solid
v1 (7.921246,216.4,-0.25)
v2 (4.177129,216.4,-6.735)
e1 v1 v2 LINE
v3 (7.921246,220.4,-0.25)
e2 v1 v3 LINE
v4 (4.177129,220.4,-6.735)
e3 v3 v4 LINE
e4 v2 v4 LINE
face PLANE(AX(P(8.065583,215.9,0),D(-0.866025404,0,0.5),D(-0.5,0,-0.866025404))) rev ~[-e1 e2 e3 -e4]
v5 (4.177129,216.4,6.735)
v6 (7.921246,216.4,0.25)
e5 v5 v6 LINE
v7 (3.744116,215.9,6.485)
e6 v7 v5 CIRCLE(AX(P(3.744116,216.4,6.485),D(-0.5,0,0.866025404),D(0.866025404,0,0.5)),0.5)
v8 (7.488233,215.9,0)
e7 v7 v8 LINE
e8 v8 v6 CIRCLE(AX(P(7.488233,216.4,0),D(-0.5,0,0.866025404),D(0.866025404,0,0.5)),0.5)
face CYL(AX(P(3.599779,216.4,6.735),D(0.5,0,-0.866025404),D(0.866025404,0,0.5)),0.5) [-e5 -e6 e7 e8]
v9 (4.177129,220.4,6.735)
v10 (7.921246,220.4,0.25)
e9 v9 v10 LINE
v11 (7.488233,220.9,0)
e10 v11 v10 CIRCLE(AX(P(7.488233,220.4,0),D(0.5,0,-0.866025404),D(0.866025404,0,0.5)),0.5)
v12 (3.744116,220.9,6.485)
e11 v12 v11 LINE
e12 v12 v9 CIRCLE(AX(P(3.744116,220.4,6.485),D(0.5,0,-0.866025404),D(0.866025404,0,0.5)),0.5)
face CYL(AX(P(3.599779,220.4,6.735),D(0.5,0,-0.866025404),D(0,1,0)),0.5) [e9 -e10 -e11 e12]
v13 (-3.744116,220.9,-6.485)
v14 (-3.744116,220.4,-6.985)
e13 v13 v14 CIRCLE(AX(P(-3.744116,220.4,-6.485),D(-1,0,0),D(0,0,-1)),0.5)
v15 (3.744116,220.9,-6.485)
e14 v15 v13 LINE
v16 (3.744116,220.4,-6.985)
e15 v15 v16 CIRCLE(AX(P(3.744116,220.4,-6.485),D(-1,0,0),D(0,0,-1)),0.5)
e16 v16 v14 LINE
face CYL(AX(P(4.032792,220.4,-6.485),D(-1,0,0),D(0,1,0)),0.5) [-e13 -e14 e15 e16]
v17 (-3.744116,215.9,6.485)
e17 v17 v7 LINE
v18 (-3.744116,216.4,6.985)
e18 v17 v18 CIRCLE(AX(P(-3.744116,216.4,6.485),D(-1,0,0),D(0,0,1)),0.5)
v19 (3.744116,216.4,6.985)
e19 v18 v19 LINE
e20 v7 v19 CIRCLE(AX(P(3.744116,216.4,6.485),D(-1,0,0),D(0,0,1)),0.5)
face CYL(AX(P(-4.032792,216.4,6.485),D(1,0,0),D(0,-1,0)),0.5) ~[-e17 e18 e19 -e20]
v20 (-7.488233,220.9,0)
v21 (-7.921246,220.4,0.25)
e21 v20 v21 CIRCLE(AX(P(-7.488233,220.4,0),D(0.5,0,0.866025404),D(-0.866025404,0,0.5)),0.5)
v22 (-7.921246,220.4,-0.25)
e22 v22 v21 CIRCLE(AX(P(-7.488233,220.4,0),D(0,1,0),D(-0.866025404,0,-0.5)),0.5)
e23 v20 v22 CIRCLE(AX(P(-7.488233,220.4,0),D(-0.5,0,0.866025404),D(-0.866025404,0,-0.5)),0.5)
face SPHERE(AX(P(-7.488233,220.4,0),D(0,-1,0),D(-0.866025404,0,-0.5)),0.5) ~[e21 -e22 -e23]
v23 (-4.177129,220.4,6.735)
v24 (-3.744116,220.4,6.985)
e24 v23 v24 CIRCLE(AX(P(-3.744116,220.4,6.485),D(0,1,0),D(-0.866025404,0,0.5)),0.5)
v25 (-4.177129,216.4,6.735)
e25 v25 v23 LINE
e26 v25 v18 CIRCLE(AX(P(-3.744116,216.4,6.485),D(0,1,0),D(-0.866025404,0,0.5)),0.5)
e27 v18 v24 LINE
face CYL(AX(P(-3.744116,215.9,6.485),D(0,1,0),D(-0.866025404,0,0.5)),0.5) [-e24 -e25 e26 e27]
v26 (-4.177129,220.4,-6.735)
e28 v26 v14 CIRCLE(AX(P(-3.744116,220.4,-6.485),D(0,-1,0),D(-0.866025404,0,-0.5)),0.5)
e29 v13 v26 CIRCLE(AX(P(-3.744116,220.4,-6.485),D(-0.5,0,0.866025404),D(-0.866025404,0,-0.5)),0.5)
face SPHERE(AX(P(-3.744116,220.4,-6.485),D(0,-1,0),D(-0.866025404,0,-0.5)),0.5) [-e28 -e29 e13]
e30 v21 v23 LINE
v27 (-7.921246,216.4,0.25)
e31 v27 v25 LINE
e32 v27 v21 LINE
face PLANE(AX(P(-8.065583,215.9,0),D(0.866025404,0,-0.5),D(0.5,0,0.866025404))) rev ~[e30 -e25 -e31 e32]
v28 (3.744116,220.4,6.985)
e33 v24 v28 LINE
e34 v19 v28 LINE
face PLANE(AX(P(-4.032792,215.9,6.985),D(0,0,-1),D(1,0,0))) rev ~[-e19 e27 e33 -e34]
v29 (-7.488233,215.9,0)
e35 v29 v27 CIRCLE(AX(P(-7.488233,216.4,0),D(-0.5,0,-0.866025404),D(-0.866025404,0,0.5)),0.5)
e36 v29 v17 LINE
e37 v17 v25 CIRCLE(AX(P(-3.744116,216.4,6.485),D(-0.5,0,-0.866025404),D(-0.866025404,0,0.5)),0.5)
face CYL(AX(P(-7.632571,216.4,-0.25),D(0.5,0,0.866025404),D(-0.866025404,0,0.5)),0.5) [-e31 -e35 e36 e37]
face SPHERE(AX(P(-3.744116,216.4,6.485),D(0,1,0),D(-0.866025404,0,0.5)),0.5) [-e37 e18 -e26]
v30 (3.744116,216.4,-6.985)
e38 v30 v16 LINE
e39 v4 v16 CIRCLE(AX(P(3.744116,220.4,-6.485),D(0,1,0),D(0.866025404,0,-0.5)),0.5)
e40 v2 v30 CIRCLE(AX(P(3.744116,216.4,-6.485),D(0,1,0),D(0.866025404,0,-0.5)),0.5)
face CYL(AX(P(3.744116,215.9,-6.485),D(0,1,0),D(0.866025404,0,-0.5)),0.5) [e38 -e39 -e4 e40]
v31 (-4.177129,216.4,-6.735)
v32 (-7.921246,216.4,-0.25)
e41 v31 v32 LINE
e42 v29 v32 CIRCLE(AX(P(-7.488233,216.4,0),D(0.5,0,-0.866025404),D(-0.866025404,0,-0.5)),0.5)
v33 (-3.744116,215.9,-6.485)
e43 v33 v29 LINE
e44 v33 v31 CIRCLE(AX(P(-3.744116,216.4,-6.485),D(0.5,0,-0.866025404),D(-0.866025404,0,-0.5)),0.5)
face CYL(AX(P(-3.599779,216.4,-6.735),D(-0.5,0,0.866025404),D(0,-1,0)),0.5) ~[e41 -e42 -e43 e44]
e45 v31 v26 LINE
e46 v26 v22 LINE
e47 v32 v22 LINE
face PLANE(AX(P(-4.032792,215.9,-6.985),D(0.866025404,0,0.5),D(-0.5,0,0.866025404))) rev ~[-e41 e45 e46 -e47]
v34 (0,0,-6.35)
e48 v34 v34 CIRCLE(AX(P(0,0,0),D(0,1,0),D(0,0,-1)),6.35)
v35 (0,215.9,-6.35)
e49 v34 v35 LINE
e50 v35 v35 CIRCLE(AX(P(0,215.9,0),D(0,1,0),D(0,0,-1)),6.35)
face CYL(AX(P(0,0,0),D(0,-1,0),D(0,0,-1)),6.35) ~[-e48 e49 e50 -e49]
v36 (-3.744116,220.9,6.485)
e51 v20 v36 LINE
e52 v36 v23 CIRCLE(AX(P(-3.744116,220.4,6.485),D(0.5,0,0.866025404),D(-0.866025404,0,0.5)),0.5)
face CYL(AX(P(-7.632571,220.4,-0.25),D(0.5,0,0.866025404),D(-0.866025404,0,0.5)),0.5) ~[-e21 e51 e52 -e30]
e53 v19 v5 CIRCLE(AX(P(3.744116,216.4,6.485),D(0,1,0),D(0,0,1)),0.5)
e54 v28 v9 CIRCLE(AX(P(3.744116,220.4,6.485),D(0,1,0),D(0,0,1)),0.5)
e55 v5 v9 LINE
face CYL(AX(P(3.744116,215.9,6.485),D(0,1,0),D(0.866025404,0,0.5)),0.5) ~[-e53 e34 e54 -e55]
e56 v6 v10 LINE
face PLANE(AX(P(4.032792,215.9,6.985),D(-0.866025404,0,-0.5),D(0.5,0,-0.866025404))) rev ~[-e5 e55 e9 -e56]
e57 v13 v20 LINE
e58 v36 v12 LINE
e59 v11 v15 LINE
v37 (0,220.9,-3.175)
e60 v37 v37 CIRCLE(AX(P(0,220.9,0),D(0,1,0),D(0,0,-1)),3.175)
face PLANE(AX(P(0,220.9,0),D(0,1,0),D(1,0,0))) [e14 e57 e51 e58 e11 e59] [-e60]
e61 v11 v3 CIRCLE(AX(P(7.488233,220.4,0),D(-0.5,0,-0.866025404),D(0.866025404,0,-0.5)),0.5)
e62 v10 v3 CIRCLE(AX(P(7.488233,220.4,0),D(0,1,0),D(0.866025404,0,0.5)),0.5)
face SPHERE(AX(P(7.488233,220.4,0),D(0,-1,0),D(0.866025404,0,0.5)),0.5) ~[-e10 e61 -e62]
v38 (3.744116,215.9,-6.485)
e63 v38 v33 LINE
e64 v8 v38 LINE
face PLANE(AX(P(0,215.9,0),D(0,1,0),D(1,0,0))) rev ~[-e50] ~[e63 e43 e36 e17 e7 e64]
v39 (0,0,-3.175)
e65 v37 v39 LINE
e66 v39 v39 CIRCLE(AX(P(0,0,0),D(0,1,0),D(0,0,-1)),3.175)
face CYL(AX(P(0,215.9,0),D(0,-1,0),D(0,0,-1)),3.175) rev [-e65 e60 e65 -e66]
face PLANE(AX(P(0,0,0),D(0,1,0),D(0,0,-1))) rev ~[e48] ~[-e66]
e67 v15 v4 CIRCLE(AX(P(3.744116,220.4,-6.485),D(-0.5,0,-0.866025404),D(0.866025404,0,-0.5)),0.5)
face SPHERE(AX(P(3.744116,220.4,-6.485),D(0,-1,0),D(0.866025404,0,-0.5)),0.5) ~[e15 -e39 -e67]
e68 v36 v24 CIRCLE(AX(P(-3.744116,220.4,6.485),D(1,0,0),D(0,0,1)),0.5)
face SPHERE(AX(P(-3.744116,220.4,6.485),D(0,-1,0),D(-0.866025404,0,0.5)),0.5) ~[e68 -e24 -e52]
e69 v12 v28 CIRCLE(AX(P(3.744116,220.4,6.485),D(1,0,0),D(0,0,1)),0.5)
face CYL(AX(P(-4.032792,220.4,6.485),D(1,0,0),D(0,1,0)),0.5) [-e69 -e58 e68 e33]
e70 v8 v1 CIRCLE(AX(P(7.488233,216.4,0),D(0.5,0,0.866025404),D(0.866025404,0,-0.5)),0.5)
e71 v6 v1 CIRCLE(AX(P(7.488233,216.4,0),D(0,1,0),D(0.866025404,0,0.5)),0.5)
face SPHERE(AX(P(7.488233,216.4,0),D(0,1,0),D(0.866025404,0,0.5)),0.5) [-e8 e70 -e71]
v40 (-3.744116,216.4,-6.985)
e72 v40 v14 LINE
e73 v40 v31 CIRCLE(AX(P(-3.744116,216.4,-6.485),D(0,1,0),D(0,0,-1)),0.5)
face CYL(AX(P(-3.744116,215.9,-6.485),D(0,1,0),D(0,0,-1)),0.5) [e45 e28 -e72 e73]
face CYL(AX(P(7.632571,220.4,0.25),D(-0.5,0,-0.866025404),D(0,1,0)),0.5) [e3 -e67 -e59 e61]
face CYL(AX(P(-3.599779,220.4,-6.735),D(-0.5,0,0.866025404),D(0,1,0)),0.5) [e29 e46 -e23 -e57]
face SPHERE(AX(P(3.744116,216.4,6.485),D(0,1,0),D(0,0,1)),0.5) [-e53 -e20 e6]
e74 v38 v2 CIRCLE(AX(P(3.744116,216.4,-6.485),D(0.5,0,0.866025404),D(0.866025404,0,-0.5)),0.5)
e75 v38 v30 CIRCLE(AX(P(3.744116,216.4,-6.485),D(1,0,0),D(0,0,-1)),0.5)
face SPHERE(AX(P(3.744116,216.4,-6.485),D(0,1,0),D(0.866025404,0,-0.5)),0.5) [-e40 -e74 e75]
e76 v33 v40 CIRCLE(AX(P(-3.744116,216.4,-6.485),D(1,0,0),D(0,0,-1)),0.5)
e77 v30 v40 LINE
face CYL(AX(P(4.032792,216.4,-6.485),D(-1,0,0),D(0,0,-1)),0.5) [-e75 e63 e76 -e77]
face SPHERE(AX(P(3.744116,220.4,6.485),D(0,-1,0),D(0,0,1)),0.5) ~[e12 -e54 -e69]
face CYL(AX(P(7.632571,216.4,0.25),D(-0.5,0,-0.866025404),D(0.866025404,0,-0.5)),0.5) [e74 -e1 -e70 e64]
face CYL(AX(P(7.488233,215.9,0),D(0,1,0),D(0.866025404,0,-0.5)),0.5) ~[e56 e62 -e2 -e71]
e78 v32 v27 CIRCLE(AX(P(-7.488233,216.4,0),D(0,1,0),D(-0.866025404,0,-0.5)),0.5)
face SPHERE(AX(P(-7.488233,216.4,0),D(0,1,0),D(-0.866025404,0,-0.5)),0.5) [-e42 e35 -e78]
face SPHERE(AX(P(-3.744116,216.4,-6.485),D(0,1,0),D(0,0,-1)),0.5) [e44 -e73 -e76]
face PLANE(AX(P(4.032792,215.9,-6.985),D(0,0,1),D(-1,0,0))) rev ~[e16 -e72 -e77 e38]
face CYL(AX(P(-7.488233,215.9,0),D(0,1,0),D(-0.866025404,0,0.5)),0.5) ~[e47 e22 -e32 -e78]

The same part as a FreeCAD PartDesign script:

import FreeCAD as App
import Part
import Sketcher
Q = App.Units.Quantity


def edges_at(feature, points):
    """Names of the edges that pass closest to the given points."""
    edges = feature.Shape.Edges
    near = lambda p: min(range(len(edges)), key=lambda i: edges[i].distToShape(Part.Vertex(*p))[0])
    return sorted({f"Edge{near(p) + 1}" for p in points})


def add_polygon(sketch, points):
    """Adds a closed chain of lines whose ends are joined by coincident constraints."""
    first, n = sketch.GeometryCount, len(points)
    for a, b in zip(points, points[1:] + points[:1]):
        sketch.addGeometry(Part.LineSegment(App.Vector(*a, 0), App.Vector(*b, 0)), False)
    for i in range(n):
        sketch.addConstraint(Sketcher.Constraint("Coincident", first + i, 2, first + (i + 1) % n, 1))

doc = App.newDocument("Part")
body = doc.addObject("PartDesign::Body", "Body")

# Sketch on XZ plane
sketch1 = body.newObject("Sketcher::SketchObject", "Sketch")
sketch1.AttachmentSupport = (doc.getObject("XZ_Plane"), [""])
sketch1.MapMode = "FlatFace"
sketch1.addGeometry([
    Part.Circle(App.Vector(0, 0, 0), App.Vector(0, 0, 1), 6.3),
    Part.Circle(App.Vector(0, 0, 0), App.Vector(0, 0, 1), 3.2),
], False)
sketch1.addConstraint([
    Sketcher.Constraint("Coincident", 0, 3, -1, 1),
    Sketcher.Constraint("Coincident", 1, 3, -1, 1),
    Sketcher.Constraint("Diameter", 0, Q("0.5 in")),
    Sketcher.Constraint("Diameter", 1, Q("0.25 in")),
])
pad1 = body.newObject("PartDesign::Pad", "Pad")
pad1.Profile = sketch1
pad1.Length = Q("8.5 in")
pad1.Reversed = True

# Sketch on XZ plane
sketch2 = body.newObject("Sketcher::SketchObject", "Sketch001")
sketch2.AttachmentSupport = (doc.getObject("XZ_Plane"), [""])
sketch2.MapMode = "FlatFace"
sketch2.AttachmentOffset = App.Placement(App.Vector(0, 0, -8.5 * 25.4), App.Rotation())
add_polygon(sketch2, [(-8.1, 0), (-4, 7), (4, 7), (8.1, 0), (4, -7), (-4, -7)])  # lines 0-5
sketch2.addGeometry(Part.Circle(App.Vector(0, 0, 0), App.Vector(0, 0, 1), 3.2), False)  # 6
sketch2.addConstraint([
    Sketcher.Constraint("Horizontal", 1),
    Sketcher.Constraint("Horizontal", 4),
    Sketcher.Constraint("Coincident", 6, 3, -1, 1),
    Sketcher.Constraint("Symmetric", 0, 2, 3, 2, -1, 1),
    Sketcher.Constraint("Symmetric", 2, 2, 5, 2, -1, 1),
    Sketcher.Constraint("PointOnObject", 2, 2, -1),
    Sketcher.Constraint("Parallel", 2, 5),
    Sketcher.Constraint("Vertical", 1, 2, 3, 2),
    Sketcher.Constraint("Diameter", 6, Q("0.25 in")),
    Sketcher.Constraint("Angle", 0, Q("60 deg")),
    Sketcher.Constraint("DistanceY", 3, 2, 1, 2, Q("0.55 in")),
    Sketcher.Constraint("DistanceX", 1, 1, 1, 2, 8.065583),
])
pad2 = body.newObject("PartDesign::Pad", "Pad001")
pad2.Profile = sketch2
pad2.Length = 5
pad2.Reversed = True
doc.recompute()

fillet = body.newObject("PartDesign::Fillet", "Fillet")
fillet.Base = (pad2, edges_at(pad2, [
    (-6.049, 220.9, -3.493),
    (-6.049, 220.9, 3.493),
    (0, 220.9, 6.985),
    (6.049, 220.9, 3.493),
    (6.049, 220.9, -3.493),
    (0, 220.9, -6.985),
    (-6.049, 215.9, -3.493),
    (-4.033, 218.4, -6.985),
    (-6.049, 215.9, 3.493),
    (-8.066, 218.4, 0),
    (0, 215.9, 6.985),
    (-4.033, 218.4, 6.985),
    (6.049, 215.9, 3.493),
    (4.033, 218.4, 6.985),
    (6.049, 215.9, -3.493),
    (8.066, 218.4, 0),
    (0, 215.9, -6.985),
    (4.033, 218.4, -6.985),
]))
fillet.Radius = 0.5

doc.recompute()
